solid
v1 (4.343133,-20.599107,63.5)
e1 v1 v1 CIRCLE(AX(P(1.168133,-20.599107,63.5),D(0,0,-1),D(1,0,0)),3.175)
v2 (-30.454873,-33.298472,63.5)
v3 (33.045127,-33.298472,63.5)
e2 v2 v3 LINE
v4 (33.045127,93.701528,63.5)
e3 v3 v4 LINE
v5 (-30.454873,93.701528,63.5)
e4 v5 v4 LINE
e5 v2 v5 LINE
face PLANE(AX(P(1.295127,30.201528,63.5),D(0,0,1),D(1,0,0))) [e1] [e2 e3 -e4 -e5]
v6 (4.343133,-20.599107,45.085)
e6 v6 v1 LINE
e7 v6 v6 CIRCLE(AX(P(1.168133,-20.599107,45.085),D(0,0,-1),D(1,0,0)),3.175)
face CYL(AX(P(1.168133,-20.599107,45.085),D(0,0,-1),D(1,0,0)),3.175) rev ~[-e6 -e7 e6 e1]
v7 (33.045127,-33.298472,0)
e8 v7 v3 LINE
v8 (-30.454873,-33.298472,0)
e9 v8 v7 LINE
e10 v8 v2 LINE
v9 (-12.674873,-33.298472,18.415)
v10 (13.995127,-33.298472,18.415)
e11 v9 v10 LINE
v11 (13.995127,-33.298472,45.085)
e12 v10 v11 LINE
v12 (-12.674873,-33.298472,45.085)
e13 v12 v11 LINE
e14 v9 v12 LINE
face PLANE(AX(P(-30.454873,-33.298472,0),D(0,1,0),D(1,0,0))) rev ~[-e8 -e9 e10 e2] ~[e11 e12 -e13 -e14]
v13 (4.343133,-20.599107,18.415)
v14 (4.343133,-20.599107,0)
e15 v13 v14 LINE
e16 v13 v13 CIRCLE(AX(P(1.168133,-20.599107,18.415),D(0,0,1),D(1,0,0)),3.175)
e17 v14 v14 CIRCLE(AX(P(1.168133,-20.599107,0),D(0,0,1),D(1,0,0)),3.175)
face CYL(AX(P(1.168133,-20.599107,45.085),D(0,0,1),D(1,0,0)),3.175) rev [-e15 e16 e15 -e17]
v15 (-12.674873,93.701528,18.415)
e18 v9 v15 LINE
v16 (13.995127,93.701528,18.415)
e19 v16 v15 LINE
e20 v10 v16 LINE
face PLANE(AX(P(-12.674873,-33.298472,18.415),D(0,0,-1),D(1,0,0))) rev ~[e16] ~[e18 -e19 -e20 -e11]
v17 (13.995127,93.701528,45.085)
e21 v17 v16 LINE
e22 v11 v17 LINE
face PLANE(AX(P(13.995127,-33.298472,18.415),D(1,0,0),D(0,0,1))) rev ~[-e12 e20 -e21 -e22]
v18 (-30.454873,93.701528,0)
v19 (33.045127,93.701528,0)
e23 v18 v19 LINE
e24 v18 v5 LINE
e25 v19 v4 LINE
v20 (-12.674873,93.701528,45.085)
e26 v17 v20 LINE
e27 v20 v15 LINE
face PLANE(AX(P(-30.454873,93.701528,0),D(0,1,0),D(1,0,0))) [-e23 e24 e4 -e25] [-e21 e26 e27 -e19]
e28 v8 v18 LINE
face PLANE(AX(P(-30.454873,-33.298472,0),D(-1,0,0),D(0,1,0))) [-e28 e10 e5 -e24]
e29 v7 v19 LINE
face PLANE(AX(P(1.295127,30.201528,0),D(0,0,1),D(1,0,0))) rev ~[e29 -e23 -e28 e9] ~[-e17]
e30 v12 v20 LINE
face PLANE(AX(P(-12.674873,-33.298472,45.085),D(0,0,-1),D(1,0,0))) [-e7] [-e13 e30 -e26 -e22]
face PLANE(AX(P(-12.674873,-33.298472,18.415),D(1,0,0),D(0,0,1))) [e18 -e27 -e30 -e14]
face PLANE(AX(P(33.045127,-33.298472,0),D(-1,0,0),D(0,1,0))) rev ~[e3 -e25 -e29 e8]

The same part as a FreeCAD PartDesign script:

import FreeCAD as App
import Part
import Sketcher
Q = App.Units.Quantity


def add_polygon(sketch, points):
    """Adds a closed chain of lines whose ends are joined by coincident constraints."""
    first, n = sketch.GeometryCount, len(points)
    for a, b in zip(points, points[1:] + points[:1]):
        sketch.addGeometry(Part.LineSegment(App.Vector(*a, 0), App.Vector(*b, 0)), False)
    for i in range(n):
        sketch.addConstraint(Sketcher.Constraint("Coincident", first + i, 2, first + (i + 1) % n, 1))

doc = App.newDocument("Part")
body = doc.addObject("PartDesign::Body", "Body")

# Sketch on XY plane
sketch1 = body.newObject("Sketcher::SketchObject", "Sketch")
sketch1.AttachmentSupport = (doc.getObject("XY_Plane"), [""])
sketch1.MapMode = "FlatFace"
add_polygon(sketch1, [(-30.454873, 93.701528), (-30.454873, -33.298472), (33.045127, -33.298472), (33.045127, 93.701528)])  # lines 0-3
sketch1.addConstraint([
    Sketcher.Constraint("Vertical", 0),
    Sketcher.Constraint("Horizontal", 1),
    Sketcher.Constraint("Vertical", 2),
    Sketcher.Constraint("Horizontal", 3),
    Sketcher.Constraint("DistanceY", 0, 2, 0, 1, Q("5 in")),
    Sketcher.Constraint("DistanceX", 1, 1, 1, 2, Q("2.5 in")),
    Sketcher.Constraint("DistanceY", 0, 2, -1, 1, Q("33.298472 mm")),
    Sketcher.Constraint("DistanceX", 0, 2, -1, 1, Q("30.454873 mm")),
])
pad1 = body.newObject("PartDesign::Pad", "Pad")
pad1.Profile = sketch1
pad1.Length = Q("2.5 in")

# Sketch on XZ plane
sketch2 = body.newObject("Sketcher::SketchObject", "Sketch001")
sketch2.AttachmentSupport = (doc.getObject("XZ_Plane"), [""])
sketch2.MapMode = "FlatFace"
sketch2.AttachmentOffset = App.Placement(App.Vector(0, 0, 33.298472), App.Rotation())
add_polygon(sketch2, [(-12.674873, 45.085), (-12.674873, 18.415), (13.995127, 18.415), (13.995127, 45.085)])  # lines 0-3
sketch2.addConstraint([
    Sketcher.Constraint("Vertical", 0),
    Sketcher.Constraint("Horizontal", 1),
    Sketcher.Constraint("Vertical", 2),
    Sketcher.Constraint("Horizontal", 3),
    Sketcher.Constraint("Equal", 3, 0),
    Sketcher.Constraint("DistanceX", 1, 1, 1, 2, Q("1.05 in")),
    Sketcher.Constraint("DistanceY", -1, 1, 0, 2, Q("0.725 in")),
    Sketcher.Constraint("DistanceX", 0, 2, -1, 1, Q("12.674873 mm")),
])
pocket1 = body.newObject("PartDesign::Pocket", "Pocket")
pocket1.Profile = sketch2
pocket1.Type = "ThroughAll"

# Sketch on XY plane
sketch3 = body.newObject("Sketcher::SketchObject", "Sketch002")
sketch3.AttachmentSupport = (doc.getObject("XY_Plane"), [""])
sketch3.MapMode = "FlatFace"
sketch3.AttachmentOffset = App.Placement(App.Vector(0, 0, 1.775 * 25.4), App.Rotation())
sketch3.addGeometry(Part.Circle(App.Vector(1.168133, -20.599107, 0), App.Vector(0, 0, 1), 3.175), False)
sketch3.addConstraint([
    Sketcher.Constraint("Diameter", 0, Q("0.25 in")),
    Sketcher.Constraint("DistanceX", -1, 1, 0, 3, Q("1.168133 mm")),
    Sketcher.Constraint("DistanceY", 0, 3, -1, 1, Q("20.599107 mm")),
])
pocket2 = body.newObject("PartDesign::Pocket", "Pocket001")
pocket2.Profile = sketch3
pocket2.Type = "ThroughAll"
pocket2.Midplane = True

doc.recompute()
